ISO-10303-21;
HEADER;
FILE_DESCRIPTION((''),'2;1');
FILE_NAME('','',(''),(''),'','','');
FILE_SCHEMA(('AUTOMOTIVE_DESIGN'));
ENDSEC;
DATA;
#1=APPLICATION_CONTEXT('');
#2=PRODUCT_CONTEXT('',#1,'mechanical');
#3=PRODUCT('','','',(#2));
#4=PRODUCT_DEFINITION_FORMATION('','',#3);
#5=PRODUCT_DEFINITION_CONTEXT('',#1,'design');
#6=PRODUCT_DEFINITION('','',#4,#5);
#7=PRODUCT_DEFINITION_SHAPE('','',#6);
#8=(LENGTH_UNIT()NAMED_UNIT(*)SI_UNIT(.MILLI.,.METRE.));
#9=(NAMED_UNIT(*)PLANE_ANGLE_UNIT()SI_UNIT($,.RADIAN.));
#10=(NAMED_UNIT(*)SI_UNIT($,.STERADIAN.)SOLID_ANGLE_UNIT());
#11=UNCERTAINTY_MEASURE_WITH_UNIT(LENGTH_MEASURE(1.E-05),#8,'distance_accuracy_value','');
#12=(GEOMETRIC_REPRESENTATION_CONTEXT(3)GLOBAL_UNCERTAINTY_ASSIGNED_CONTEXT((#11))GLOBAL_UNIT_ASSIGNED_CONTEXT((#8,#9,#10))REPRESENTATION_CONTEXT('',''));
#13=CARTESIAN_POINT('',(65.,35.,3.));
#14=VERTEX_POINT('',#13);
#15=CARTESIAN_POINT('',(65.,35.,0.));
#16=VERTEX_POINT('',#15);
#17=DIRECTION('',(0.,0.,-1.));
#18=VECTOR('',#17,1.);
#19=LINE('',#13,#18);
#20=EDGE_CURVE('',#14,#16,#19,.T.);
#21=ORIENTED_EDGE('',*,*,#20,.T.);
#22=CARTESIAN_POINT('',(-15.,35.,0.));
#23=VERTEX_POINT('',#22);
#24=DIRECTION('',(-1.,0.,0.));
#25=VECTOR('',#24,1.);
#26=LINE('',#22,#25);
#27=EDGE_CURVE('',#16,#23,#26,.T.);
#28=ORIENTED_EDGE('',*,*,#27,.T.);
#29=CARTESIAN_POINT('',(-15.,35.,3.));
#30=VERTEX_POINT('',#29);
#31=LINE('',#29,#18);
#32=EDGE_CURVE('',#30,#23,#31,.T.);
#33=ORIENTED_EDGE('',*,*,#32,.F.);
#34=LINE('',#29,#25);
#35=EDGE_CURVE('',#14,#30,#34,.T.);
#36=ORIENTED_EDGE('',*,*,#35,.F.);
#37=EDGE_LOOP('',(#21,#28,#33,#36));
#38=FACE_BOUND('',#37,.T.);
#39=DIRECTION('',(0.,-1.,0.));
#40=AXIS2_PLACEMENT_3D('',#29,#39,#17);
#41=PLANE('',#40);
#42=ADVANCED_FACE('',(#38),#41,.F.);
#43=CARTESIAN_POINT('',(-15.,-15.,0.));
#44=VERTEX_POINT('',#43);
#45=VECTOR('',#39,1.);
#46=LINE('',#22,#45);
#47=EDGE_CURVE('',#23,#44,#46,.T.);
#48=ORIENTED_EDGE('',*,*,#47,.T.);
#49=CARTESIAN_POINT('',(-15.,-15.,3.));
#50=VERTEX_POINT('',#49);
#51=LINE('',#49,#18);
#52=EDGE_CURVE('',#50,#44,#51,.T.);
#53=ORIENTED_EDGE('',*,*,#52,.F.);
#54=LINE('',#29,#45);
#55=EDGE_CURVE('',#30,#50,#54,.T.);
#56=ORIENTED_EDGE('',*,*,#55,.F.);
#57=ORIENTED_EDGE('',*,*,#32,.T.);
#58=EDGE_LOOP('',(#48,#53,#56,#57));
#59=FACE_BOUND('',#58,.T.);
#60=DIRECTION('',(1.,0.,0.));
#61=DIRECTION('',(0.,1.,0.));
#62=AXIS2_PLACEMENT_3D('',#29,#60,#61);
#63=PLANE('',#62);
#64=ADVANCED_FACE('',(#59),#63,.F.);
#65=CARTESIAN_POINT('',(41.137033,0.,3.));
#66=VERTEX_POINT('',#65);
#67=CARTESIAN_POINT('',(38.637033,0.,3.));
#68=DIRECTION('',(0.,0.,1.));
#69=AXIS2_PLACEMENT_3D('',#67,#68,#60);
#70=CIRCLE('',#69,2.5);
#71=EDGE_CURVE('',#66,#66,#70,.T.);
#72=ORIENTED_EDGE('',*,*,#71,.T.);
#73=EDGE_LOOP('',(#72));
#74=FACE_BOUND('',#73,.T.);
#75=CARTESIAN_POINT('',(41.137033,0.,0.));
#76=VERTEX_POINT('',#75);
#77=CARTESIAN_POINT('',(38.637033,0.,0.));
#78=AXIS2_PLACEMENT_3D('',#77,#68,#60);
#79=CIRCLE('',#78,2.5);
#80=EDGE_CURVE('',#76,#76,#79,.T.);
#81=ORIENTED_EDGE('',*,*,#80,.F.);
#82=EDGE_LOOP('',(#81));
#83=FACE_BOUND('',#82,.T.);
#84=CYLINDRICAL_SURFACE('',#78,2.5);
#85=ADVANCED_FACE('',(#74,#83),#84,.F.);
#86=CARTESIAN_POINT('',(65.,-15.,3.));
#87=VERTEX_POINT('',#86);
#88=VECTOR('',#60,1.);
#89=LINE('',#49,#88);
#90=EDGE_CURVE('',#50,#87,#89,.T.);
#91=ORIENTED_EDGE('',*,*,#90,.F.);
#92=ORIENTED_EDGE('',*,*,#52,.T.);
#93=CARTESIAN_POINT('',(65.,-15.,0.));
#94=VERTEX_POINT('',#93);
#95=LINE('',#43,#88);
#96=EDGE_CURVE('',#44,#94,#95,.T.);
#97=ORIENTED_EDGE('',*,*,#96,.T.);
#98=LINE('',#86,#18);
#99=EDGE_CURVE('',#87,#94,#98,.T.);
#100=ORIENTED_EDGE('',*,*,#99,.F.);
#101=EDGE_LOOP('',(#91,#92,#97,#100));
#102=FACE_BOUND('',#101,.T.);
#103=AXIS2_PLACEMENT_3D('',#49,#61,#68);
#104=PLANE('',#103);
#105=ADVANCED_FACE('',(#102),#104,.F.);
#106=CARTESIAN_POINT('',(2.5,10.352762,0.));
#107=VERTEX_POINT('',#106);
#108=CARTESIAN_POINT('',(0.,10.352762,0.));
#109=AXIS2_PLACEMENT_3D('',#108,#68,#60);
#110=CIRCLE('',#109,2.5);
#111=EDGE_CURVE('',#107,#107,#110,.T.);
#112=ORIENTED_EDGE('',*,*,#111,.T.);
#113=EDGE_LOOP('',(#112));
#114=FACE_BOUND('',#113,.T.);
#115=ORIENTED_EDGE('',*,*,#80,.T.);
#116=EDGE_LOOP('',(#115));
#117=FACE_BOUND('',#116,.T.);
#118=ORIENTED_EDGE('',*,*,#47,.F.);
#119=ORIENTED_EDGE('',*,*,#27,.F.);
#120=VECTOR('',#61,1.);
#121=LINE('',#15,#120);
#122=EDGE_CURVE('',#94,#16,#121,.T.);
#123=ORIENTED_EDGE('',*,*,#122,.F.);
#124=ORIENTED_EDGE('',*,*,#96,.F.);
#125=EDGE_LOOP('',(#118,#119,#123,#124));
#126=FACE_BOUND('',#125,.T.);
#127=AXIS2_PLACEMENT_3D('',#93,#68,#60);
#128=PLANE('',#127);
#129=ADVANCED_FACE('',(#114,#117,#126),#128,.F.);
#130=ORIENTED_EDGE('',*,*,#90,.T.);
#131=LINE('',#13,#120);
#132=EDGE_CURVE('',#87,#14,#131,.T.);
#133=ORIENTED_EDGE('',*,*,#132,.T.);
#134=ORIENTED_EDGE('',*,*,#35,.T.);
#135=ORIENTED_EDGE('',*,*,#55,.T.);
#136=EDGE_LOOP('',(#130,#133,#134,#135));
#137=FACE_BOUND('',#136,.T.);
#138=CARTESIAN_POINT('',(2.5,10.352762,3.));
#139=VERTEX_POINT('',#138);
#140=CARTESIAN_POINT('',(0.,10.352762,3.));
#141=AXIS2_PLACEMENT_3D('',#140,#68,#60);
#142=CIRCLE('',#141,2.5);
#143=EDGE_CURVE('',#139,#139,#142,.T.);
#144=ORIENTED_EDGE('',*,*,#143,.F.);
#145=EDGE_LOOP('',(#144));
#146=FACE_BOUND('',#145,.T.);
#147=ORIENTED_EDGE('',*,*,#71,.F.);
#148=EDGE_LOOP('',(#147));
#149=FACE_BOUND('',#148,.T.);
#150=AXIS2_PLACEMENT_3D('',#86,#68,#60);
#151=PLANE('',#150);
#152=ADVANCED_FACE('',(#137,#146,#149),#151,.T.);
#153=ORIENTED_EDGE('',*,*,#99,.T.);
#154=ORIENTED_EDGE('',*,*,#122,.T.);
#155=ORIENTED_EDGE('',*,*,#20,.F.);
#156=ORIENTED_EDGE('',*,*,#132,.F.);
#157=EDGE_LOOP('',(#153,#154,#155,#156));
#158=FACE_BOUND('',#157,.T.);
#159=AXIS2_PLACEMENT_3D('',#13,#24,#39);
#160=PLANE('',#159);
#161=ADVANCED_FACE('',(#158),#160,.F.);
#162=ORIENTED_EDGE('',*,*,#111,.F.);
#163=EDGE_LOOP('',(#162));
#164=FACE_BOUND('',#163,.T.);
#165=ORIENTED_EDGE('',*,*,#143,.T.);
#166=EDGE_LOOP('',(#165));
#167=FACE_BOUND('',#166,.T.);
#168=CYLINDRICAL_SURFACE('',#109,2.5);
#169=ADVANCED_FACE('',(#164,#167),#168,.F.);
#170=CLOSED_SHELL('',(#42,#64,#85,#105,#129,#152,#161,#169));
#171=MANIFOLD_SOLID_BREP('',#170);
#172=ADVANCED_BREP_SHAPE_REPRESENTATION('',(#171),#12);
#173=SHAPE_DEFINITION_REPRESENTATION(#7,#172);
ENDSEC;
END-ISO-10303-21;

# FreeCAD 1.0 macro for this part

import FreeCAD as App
import Part
import Sketcher
from FreeCAD import Vector

doc = App.newDocument("Part")
params = doc.addObject("Spreadsheet::Sheet", "Params")
for row, (alias, value) in enumerate([
    ("sketch1_width", "80 mm"),
    ("sketch1_height", "50 mm"),
    ("pad1_length", "3 mm"),
    ("sketch2_diameter", "5 mm"),
], start=1):
    params.set(f"A{row}", alias)
    params.set(f"B{row}", "=" + value)
    params.setAlias(f"B{row}", alias)

body = doc.addObject("PartDesign::Body", "Body")

sketch1 = body.newObject("Sketcher::SketchObject", "Sketch")
sketch1.AttachmentSupport = (doc.getObject("XY_Plane"), [""])
sketch1.MapMode = "FlatFace"
sketch1.addGeometry([
    Part.LineSegment(Vector(-15, 35, 0), Vector(-15, -15, 0)),
    Part.LineSegment(Vector(-15, -15, 0), Vector(65, -15, 0)),
    Part.LineSegment(Vector(65, -15, 0), Vector(65, 35, 0)),
    Part.LineSegment(Vector(65, 35, 0), Vector(-15, 35, 0)),
], False)
sketch1.addConstraint([
    Sketcher.Constraint("Coincident", 0, 2, 1, 1),
    Sketcher.Constraint("Coincident", 1, 2, 2, 1),
    Sketcher.Constraint("Coincident", 2, 2, 3, 1),
    Sketcher.Constraint("Coincident", 3, 2, 0, 1),
    Sketcher.Constraint("Vertical", 0),
    Sketcher.Constraint("Horizontal", 1),
    Sketcher.Constraint("Vertical", 2),
    Sketcher.Constraint("Horizontal", 3),
    Sketcher.Constraint("DistanceX", 1, 1, 1, 2, 80.0),
    Sketcher.Constraint("DistanceY", 0, 2, 0, 1, 50.0),
    Sketcher.Constraint("DistanceX", 0, 2, -1, 1, 15.0),
    Sketcher.Constraint("DistanceY", 0, 2, -1, 1, 15.0),
])
sketch1.setExpression("Constraints[8]", "Params.sketch1_width")
sketch1.setExpression("Constraints[9]", "Params.sketch1_height")
pad1 = body.newObject("PartDesign::Pad", "Pad")
pad1.Profile = sketch1
pad1.setExpression("Length", "Params.pad1_length")

sketch2 = body.newObject("Sketcher::SketchObject", "Sketch001")
sketch2.AttachmentSupport = (doc.getObject("XY_Plane"), [""])
sketch2.MapMode = "FlatFace"
sketch2.AttachmentOffset = App.Placement(Vector(0, 0, 3), App.Rotation())
sketch2.addGeometry([
    Part.Circle(Vector(0, 10.352762, 0), Vector(0, 0, 1), 2.5),
    Part.Circle(Vector(38.637033, 0, 0), Vector(0, 0, 1), 2.5),
], False)
sketch2.addConstraint([
    Sketcher.Constraint("Equal", 0, 1),
    Sketcher.Constraint("PointOnObject", 0, 3, -2),
    Sketcher.Constraint("PointOnObject", 1, 3, -1),
    Sketcher.Constraint("Diameter", 0, 5.0),
    Sketcher.Constraint("DistanceY", -1, 1, 0, 3, 10.352762),
    Sketcher.Constraint("DistanceX", -1, 1, 1, 3, 38.637033),
])
sketch2.setExpression("Constraints[3]", "Params.sketch2_diameter")
pocket1 = body.newObject("PartDesign::Pocket", "Pocket")
pocket1.Profile = sketch2
pocket1.Type = "ThroughAll"

doc.recompute()
